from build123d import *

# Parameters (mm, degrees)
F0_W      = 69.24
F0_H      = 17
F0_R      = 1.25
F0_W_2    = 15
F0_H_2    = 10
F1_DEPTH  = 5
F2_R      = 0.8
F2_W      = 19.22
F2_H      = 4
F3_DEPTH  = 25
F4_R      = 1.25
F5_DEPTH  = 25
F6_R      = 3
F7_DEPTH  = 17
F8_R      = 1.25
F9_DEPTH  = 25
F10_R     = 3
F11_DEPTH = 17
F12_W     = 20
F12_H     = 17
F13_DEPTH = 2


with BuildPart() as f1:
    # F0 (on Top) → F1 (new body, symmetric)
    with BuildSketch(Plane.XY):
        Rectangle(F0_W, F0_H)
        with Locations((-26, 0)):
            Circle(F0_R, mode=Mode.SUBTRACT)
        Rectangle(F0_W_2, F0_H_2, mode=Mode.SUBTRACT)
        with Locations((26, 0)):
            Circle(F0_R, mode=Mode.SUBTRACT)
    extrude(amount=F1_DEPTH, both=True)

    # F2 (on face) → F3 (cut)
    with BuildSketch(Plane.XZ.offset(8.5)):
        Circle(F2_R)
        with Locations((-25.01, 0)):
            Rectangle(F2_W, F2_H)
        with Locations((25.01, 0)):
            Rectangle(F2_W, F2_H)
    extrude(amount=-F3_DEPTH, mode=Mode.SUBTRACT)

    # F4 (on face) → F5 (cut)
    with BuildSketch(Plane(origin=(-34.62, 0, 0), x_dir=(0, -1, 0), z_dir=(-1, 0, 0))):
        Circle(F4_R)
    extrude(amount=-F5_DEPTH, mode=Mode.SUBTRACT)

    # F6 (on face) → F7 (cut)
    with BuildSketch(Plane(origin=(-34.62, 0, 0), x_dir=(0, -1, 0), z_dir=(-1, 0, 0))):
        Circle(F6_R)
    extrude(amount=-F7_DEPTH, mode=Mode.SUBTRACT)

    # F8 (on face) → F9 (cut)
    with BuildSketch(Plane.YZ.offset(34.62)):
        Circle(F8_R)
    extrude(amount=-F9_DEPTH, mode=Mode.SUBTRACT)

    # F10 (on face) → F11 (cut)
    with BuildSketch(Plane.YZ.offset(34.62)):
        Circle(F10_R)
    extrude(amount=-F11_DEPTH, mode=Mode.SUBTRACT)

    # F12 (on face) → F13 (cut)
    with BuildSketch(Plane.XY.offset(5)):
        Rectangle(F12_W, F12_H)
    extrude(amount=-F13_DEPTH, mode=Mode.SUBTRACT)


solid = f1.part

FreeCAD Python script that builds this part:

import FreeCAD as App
import Part
import Sketcher

V = App.Vector

doc = App.newDocument("Part")
body = doc.addObject("PartDesign::Body", "Body")

# Sketch on XY plane
sketch1 = body.newObject("Sketcher::SketchObject", "Sketch")
sketch1.AttachmentSupport = (doc.getObject("XY_Plane"), [""])
sketch1.MapMode = "FlatFace"
sketch1.addGeometry([
    Part.LineSegment(V(-34.6, 8.5, 0), V(-34.6, -8.5, 0)),  # 0
    Part.LineSegment(V(-34.6, -8.5, 0), V(34.6, -8.5, 0)),  # 1
    Part.LineSegment(V(34.6, -8.5, 0), V(34.6, 8.5, 0)),  # 2
    Part.LineSegment(V(34.6, 8.5, 0), V(-34.6, 8.5, 0)),  # 3
    Part.Circle(V(-26, 0, 0), V(0, 0, 1), 1.2),  # 4
    Part.LineSegment(V(7.5, -5, 0), V(-7.5, -5, 0)),  # 5
    Part.LineSegment(V(-7.5, -5, 0), V(-7.5, 5, 0)),  # 6
    Part.LineSegment(V(-7.5, 5, 0), V(7.5, 5, 0)),  # 7
    Part.LineSegment(V(7.5, 5, 0), V(7.5, -5, 0)),  # 8
    Part.Circle(V(26, 0, 0), V(0, 0, 1), 1.2),  # 9
], False)
sketch1.addConstraint([
    Sketcher.Constraint("Coincident", 0, 2, 1, 1),
    Sketcher.Constraint("Coincident", 1, 2, 2, 1),
    Sketcher.Constraint("Coincident", 2, 2, 3, 1),
    Sketcher.Constraint("Coincident", 3, 2, 0, 1),
    Sketcher.Constraint("Coincident", 5, 2, 6, 1),
    Sketcher.Constraint("Coincident", 6, 2, 7, 1),
    Sketcher.Constraint("Coincident", 7, 2, 8, 1),
    Sketcher.Constraint("Coincident", 8, 2, 5, 1),
    Sketcher.Constraint("Vertical", 0),
    Sketcher.Constraint("Horizontal", 1),
    Sketcher.Constraint("Vertical", 2),
    Sketcher.Constraint("Horizontal", 3),
    Sketcher.Constraint("Horizontal", 5),
    Sketcher.Constraint("Vertical", 6),
    Sketcher.Constraint("Horizontal", 7),
    Sketcher.Constraint("Vertical", 8),
    Sketcher.Constraint("Equal", 4, 9),
    Sketcher.Constraint("Symmetric", 4, 3, 9, 3, -1, 1),
    Sketcher.Constraint("Symmetric", 0, 2, 2, 2, -1, 1),
    Sketcher.Constraint("Symmetric", 5, 2, 7, 2, -1, 1),
    Sketcher.Constraint("PointOnObject", 4, 3, -1),
    Sketcher.Constraint("Diameter", 4, 2.5),
    Sketcher.Constraint("DistanceX", 5, 2, 5, 1, 15.0),
    Sketcher.Constraint("DistanceY", 0, 2, 0, 1, 17.0),
    Sketcher.Constraint("DistanceY", 6, 1, 6, 2, 10.0),
    Sketcher.Constraint("DistanceX", 4, 3, -1, 1, 26.0),
    Sketcher.Constraint("DistanceX", 1, 1, 1, 2, 69.24),
])
pad1 = body.newObject("PartDesign::Pad", "Pad")
pad1.Profile = sketch1
pad1.Length = 10
pad1.Midplane = True

# Sketch on XZ plane
sketch2 = body.newObject("Sketcher::SketchObject", "Sketch001")
sketch2.AttachmentSupport = (doc.getObject("XZ_Plane"), [""])
sketch2.MapMode = "FlatFace"
sketch2.AttachmentOffset = App.Placement(V(0, 0, 8.5), App.Rotation())
sketch2.addGeometry([
    Part.Circle(V(0, 0, 0), V(0, 0, 1), 0.8),  # 0
    Part.LineSegment(V(-34.6, 2, 0), V(-34.6, -2, 0)),  # 1
    Part.LineSegment(V(-34.6, -2, 0), V(-15.4, -2, 0)),  # 2
    Part.LineSegment(V(-15.4, -2, 0), V(-15.4, 2, 0)),  # 3
    Part.LineSegment(V(-15.4, 2, 0), V(-34.6, 2, 0)),  # 4
    Part.LineSegment(V(15.4, 2, 0), V(15.4, -2, 0)),  # 5
    Part.LineSegment(V(15.4, -2, 0), V(34.6, -2, 0)),  # 6
    Part.LineSegment(V(34.6, -2, 0), V(34.6, 2, 0)),  # 7
    Part.LineSegment(V(34.6, 2, 0), V(15.4, 2, 0)),  # 8
], False)
sketch2.addConstraint([
    Sketcher.Constraint("Coincident", 1, 2, 2, 1),
    Sketcher.Constraint("Coincident", 2, 2, 3, 1),
    Sketcher.Constraint("Coincident", 3, 2, 4, 1),
    Sketcher.Constraint("Coincident", 4, 2, 1, 1),
    Sketcher.Constraint("Coincident", 5, 2, 6, 1),
    Sketcher.Constraint("Coincident", 6, 2, 7, 1),
    Sketcher.Constraint("Coincident", 7, 2, 8, 1),
    Sketcher.Constraint("Coincident", 8, 2, 5, 1),
    Sketcher.Constraint("Vertical", 1),
    Sketcher.Constraint("Horizontal", 2),
    Sketcher.Constraint("Vertical", 3),
    Sketcher.Constraint("Horizontal", 4),
    Sketcher.Constraint("Vertical", 5),
    Sketcher.Constraint("Horizontal", 6),
    Sketcher.Constraint("Vertical", 7),
    Sketcher.Constraint("Horizontal", 8),
    Sketcher.Constraint("Coincident", 0, 3, -1, 1),
    Sketcher.Constraint("Symmetric", 3, 2, 5, 2, -1, 1),
    Sketcher.Constraint("Symmetric", 1, 2, 7, 2, -1, 1),
    Sketcher.Constraint("Horizontal", 2, 2, 5, 2),
    Sketcher.Constraint("Diameter", 0, 1.6),
    Sketcher.Constraint("DistanceY", 1, 2, 1, 1, 4.0),
    Sketcher.Constraint("DistanceX", 2, 1, 2, 2, 19.22),
    Sketcher.Constraint("DistanceX", 2, 2, -1, 1, 15.4),
])
pocket1 = body.newObject("PartDesign::Pocket", "Pocket")
pocket1.Profile = sketch2
pocket1.Length = 25

# Sketch on YZ plane
sketch3 = body.newObject("Sketcher::SketchObject", "Sketch002")
sketch3.AttachmentSupport = (doc.getObject("YZ_Plane"), [""])
sketch3.MapMode = "FlatFace"
sketch3.AttachmentOffset = App.Placement(V(0, 0, -34.62), App.Rotation())
sketch3.addGeometry(Part.Circle(V(0, 0, 0), V(0, 0, 1), 1.2), False)
sketch3.addConstraint([
    Sketcher.Constraint("Coincident", 0, 3, -1, 1),
    Sketcher.Constraint("Diameter", 0, 2.5),
])
pocket2 = body.newObject("PartDesign::Pocket", "Pocket001")
pocket2.Profile = sketch3
pocket2.Length = 25
pocket2.Reversed = True

# Sketch on YZ plane
sketch4 = body.newObject("Sketcher::SketchObject", "Sketch003")
sketch4.AttachmentSupport = (doc.getObject("YZ_Plane"), [""])
sketch4.MapMode = "FlatFace"
sketch4.AttachmentOffset = App.Placement(V(0, 0, -34.62), App.Rotation())
sketch4.addGeometry(Part.Circle(V(0, 0, 0), V(0, 0, 1), 3), False)
sketch4.addConstraint([
    Sketcher.Constraint("Coincident", 0, 3, -1, 1),
    Sketcher.Constraint("Diameter", 0, 6.0),
])
pocket3 = body.newObject("PartDesign::Pocket", "Pocket002")
pocket3.Profile = sketch4
pocket3.Length = 17
pocket3.Reversed = True

# Sketch on YZ plane
sketch5 = body.newObject("Sketcher::SketchObject", "Sketch004")
sketch5.AttachmentSupport = (doc.getObject("YZ_Plane"), [""])
sketch5.MapMode = "FlatFace"
sketch5.AttachmentOffset = App.Placement(V(0, 0, 34.62), App.Rotation())
sketch5.addGeometry(Part.Circle(V(0, 0, 0), V(0, 0, 1), 1.2), False)
sketch5.addConstraint([
    Sketcher.Constraint("Coincident", 0, 3, -1, 1),
    Sketcher.Constraint("Diameter", 0, 2.5),
])
pocket4 = body.newObject("PartDesign::Pocket", "Pocket003")
pocket4.Profile = sketch5
pocket4.Length = 25

# Sketch on YZ plane
sketch6 = body.newObject("Sketcher::SketchObject", "Sketch005")
sketch6.AttachmentSupport = (doc.getObject("YZ_Plane"), [""])
sketch6.MapMode = "FlatFace"
sketch6.AttachmentOffset = App.Placement(V(0, 0, 34.62), App.Rotation())
sketch6.addGeometry(Part.Circle(V(0, 0, 0), V(0, 0, 1), 3), False)
sketch6.addConstraint([
    Sketcher.Constraint("Coincident", 0, 3, -1, 1),
    Sketcher.Constraint("Diameter", 0, 6.0),
])
pocket5 = body.newObject("PartDesign::Pocket", "Pocket004")
pocket5.Profile = sketch6
pocket5.Length = 17

# Sketch on XY plane
sketch7 = body.newObject("Sketcher::SketchObject", "Sketch006")
sketch7.AttachmentSupport = (doc.getObject("XY_Plane"), [""])
sketch7.MapMode = "FlatFace"
sketch7.AttachmentOffset = App.Placement(V(0, 0, 5), App.Rotation())
sketch7.addGeometry([
    Part.LineSegment(V(-10, 8, 0), V(-10, -8, 0)),
    Part.LineSegment(V(-10, -8, 0), V(10, -8, 0)),
    Part.LineSegment(V(10, -8, 0), V(10, 8, 0)),
    Part.LineSegment(V(10, 8, 0), V(-10, 8, 0)),
], False)
sketch7.addConstraint([
    Sketcher.Constraint("Coincident", 0, 2, 1, 1),
    Sketcher.Constraint("Coincident", 1, 2, 2, 1),
    Sketcher.Constraint("Coincident", 2, 2, 3, 1),
    Sketcher.Constraint("Coincident", 3, 2, 0, 1),
    Sketcher.Constraint("Vertical", 0),
    Sketcher.Constraint("Horizontal", 1),
    Sketcher.Constraint("Vertical", 2),
    Sketcher.Constraint("Horizontal", 3),
    Sketcher.Constraint("Symmetric", 0, 2, 2, 2, -1, 1),
    Sketcher.Constraint("DistanceX", 1, 1, 1, 2, 20.0),
    Sketcher.Constraint("DistanceY", 0, 2, 0, 1, 17.0),
])
pocket6 = body.newObject("PartDesign::Pocket", "Pocket005")
pocket6.Profile = sketch7
pocket6.Length = 2

doc.recompute()
